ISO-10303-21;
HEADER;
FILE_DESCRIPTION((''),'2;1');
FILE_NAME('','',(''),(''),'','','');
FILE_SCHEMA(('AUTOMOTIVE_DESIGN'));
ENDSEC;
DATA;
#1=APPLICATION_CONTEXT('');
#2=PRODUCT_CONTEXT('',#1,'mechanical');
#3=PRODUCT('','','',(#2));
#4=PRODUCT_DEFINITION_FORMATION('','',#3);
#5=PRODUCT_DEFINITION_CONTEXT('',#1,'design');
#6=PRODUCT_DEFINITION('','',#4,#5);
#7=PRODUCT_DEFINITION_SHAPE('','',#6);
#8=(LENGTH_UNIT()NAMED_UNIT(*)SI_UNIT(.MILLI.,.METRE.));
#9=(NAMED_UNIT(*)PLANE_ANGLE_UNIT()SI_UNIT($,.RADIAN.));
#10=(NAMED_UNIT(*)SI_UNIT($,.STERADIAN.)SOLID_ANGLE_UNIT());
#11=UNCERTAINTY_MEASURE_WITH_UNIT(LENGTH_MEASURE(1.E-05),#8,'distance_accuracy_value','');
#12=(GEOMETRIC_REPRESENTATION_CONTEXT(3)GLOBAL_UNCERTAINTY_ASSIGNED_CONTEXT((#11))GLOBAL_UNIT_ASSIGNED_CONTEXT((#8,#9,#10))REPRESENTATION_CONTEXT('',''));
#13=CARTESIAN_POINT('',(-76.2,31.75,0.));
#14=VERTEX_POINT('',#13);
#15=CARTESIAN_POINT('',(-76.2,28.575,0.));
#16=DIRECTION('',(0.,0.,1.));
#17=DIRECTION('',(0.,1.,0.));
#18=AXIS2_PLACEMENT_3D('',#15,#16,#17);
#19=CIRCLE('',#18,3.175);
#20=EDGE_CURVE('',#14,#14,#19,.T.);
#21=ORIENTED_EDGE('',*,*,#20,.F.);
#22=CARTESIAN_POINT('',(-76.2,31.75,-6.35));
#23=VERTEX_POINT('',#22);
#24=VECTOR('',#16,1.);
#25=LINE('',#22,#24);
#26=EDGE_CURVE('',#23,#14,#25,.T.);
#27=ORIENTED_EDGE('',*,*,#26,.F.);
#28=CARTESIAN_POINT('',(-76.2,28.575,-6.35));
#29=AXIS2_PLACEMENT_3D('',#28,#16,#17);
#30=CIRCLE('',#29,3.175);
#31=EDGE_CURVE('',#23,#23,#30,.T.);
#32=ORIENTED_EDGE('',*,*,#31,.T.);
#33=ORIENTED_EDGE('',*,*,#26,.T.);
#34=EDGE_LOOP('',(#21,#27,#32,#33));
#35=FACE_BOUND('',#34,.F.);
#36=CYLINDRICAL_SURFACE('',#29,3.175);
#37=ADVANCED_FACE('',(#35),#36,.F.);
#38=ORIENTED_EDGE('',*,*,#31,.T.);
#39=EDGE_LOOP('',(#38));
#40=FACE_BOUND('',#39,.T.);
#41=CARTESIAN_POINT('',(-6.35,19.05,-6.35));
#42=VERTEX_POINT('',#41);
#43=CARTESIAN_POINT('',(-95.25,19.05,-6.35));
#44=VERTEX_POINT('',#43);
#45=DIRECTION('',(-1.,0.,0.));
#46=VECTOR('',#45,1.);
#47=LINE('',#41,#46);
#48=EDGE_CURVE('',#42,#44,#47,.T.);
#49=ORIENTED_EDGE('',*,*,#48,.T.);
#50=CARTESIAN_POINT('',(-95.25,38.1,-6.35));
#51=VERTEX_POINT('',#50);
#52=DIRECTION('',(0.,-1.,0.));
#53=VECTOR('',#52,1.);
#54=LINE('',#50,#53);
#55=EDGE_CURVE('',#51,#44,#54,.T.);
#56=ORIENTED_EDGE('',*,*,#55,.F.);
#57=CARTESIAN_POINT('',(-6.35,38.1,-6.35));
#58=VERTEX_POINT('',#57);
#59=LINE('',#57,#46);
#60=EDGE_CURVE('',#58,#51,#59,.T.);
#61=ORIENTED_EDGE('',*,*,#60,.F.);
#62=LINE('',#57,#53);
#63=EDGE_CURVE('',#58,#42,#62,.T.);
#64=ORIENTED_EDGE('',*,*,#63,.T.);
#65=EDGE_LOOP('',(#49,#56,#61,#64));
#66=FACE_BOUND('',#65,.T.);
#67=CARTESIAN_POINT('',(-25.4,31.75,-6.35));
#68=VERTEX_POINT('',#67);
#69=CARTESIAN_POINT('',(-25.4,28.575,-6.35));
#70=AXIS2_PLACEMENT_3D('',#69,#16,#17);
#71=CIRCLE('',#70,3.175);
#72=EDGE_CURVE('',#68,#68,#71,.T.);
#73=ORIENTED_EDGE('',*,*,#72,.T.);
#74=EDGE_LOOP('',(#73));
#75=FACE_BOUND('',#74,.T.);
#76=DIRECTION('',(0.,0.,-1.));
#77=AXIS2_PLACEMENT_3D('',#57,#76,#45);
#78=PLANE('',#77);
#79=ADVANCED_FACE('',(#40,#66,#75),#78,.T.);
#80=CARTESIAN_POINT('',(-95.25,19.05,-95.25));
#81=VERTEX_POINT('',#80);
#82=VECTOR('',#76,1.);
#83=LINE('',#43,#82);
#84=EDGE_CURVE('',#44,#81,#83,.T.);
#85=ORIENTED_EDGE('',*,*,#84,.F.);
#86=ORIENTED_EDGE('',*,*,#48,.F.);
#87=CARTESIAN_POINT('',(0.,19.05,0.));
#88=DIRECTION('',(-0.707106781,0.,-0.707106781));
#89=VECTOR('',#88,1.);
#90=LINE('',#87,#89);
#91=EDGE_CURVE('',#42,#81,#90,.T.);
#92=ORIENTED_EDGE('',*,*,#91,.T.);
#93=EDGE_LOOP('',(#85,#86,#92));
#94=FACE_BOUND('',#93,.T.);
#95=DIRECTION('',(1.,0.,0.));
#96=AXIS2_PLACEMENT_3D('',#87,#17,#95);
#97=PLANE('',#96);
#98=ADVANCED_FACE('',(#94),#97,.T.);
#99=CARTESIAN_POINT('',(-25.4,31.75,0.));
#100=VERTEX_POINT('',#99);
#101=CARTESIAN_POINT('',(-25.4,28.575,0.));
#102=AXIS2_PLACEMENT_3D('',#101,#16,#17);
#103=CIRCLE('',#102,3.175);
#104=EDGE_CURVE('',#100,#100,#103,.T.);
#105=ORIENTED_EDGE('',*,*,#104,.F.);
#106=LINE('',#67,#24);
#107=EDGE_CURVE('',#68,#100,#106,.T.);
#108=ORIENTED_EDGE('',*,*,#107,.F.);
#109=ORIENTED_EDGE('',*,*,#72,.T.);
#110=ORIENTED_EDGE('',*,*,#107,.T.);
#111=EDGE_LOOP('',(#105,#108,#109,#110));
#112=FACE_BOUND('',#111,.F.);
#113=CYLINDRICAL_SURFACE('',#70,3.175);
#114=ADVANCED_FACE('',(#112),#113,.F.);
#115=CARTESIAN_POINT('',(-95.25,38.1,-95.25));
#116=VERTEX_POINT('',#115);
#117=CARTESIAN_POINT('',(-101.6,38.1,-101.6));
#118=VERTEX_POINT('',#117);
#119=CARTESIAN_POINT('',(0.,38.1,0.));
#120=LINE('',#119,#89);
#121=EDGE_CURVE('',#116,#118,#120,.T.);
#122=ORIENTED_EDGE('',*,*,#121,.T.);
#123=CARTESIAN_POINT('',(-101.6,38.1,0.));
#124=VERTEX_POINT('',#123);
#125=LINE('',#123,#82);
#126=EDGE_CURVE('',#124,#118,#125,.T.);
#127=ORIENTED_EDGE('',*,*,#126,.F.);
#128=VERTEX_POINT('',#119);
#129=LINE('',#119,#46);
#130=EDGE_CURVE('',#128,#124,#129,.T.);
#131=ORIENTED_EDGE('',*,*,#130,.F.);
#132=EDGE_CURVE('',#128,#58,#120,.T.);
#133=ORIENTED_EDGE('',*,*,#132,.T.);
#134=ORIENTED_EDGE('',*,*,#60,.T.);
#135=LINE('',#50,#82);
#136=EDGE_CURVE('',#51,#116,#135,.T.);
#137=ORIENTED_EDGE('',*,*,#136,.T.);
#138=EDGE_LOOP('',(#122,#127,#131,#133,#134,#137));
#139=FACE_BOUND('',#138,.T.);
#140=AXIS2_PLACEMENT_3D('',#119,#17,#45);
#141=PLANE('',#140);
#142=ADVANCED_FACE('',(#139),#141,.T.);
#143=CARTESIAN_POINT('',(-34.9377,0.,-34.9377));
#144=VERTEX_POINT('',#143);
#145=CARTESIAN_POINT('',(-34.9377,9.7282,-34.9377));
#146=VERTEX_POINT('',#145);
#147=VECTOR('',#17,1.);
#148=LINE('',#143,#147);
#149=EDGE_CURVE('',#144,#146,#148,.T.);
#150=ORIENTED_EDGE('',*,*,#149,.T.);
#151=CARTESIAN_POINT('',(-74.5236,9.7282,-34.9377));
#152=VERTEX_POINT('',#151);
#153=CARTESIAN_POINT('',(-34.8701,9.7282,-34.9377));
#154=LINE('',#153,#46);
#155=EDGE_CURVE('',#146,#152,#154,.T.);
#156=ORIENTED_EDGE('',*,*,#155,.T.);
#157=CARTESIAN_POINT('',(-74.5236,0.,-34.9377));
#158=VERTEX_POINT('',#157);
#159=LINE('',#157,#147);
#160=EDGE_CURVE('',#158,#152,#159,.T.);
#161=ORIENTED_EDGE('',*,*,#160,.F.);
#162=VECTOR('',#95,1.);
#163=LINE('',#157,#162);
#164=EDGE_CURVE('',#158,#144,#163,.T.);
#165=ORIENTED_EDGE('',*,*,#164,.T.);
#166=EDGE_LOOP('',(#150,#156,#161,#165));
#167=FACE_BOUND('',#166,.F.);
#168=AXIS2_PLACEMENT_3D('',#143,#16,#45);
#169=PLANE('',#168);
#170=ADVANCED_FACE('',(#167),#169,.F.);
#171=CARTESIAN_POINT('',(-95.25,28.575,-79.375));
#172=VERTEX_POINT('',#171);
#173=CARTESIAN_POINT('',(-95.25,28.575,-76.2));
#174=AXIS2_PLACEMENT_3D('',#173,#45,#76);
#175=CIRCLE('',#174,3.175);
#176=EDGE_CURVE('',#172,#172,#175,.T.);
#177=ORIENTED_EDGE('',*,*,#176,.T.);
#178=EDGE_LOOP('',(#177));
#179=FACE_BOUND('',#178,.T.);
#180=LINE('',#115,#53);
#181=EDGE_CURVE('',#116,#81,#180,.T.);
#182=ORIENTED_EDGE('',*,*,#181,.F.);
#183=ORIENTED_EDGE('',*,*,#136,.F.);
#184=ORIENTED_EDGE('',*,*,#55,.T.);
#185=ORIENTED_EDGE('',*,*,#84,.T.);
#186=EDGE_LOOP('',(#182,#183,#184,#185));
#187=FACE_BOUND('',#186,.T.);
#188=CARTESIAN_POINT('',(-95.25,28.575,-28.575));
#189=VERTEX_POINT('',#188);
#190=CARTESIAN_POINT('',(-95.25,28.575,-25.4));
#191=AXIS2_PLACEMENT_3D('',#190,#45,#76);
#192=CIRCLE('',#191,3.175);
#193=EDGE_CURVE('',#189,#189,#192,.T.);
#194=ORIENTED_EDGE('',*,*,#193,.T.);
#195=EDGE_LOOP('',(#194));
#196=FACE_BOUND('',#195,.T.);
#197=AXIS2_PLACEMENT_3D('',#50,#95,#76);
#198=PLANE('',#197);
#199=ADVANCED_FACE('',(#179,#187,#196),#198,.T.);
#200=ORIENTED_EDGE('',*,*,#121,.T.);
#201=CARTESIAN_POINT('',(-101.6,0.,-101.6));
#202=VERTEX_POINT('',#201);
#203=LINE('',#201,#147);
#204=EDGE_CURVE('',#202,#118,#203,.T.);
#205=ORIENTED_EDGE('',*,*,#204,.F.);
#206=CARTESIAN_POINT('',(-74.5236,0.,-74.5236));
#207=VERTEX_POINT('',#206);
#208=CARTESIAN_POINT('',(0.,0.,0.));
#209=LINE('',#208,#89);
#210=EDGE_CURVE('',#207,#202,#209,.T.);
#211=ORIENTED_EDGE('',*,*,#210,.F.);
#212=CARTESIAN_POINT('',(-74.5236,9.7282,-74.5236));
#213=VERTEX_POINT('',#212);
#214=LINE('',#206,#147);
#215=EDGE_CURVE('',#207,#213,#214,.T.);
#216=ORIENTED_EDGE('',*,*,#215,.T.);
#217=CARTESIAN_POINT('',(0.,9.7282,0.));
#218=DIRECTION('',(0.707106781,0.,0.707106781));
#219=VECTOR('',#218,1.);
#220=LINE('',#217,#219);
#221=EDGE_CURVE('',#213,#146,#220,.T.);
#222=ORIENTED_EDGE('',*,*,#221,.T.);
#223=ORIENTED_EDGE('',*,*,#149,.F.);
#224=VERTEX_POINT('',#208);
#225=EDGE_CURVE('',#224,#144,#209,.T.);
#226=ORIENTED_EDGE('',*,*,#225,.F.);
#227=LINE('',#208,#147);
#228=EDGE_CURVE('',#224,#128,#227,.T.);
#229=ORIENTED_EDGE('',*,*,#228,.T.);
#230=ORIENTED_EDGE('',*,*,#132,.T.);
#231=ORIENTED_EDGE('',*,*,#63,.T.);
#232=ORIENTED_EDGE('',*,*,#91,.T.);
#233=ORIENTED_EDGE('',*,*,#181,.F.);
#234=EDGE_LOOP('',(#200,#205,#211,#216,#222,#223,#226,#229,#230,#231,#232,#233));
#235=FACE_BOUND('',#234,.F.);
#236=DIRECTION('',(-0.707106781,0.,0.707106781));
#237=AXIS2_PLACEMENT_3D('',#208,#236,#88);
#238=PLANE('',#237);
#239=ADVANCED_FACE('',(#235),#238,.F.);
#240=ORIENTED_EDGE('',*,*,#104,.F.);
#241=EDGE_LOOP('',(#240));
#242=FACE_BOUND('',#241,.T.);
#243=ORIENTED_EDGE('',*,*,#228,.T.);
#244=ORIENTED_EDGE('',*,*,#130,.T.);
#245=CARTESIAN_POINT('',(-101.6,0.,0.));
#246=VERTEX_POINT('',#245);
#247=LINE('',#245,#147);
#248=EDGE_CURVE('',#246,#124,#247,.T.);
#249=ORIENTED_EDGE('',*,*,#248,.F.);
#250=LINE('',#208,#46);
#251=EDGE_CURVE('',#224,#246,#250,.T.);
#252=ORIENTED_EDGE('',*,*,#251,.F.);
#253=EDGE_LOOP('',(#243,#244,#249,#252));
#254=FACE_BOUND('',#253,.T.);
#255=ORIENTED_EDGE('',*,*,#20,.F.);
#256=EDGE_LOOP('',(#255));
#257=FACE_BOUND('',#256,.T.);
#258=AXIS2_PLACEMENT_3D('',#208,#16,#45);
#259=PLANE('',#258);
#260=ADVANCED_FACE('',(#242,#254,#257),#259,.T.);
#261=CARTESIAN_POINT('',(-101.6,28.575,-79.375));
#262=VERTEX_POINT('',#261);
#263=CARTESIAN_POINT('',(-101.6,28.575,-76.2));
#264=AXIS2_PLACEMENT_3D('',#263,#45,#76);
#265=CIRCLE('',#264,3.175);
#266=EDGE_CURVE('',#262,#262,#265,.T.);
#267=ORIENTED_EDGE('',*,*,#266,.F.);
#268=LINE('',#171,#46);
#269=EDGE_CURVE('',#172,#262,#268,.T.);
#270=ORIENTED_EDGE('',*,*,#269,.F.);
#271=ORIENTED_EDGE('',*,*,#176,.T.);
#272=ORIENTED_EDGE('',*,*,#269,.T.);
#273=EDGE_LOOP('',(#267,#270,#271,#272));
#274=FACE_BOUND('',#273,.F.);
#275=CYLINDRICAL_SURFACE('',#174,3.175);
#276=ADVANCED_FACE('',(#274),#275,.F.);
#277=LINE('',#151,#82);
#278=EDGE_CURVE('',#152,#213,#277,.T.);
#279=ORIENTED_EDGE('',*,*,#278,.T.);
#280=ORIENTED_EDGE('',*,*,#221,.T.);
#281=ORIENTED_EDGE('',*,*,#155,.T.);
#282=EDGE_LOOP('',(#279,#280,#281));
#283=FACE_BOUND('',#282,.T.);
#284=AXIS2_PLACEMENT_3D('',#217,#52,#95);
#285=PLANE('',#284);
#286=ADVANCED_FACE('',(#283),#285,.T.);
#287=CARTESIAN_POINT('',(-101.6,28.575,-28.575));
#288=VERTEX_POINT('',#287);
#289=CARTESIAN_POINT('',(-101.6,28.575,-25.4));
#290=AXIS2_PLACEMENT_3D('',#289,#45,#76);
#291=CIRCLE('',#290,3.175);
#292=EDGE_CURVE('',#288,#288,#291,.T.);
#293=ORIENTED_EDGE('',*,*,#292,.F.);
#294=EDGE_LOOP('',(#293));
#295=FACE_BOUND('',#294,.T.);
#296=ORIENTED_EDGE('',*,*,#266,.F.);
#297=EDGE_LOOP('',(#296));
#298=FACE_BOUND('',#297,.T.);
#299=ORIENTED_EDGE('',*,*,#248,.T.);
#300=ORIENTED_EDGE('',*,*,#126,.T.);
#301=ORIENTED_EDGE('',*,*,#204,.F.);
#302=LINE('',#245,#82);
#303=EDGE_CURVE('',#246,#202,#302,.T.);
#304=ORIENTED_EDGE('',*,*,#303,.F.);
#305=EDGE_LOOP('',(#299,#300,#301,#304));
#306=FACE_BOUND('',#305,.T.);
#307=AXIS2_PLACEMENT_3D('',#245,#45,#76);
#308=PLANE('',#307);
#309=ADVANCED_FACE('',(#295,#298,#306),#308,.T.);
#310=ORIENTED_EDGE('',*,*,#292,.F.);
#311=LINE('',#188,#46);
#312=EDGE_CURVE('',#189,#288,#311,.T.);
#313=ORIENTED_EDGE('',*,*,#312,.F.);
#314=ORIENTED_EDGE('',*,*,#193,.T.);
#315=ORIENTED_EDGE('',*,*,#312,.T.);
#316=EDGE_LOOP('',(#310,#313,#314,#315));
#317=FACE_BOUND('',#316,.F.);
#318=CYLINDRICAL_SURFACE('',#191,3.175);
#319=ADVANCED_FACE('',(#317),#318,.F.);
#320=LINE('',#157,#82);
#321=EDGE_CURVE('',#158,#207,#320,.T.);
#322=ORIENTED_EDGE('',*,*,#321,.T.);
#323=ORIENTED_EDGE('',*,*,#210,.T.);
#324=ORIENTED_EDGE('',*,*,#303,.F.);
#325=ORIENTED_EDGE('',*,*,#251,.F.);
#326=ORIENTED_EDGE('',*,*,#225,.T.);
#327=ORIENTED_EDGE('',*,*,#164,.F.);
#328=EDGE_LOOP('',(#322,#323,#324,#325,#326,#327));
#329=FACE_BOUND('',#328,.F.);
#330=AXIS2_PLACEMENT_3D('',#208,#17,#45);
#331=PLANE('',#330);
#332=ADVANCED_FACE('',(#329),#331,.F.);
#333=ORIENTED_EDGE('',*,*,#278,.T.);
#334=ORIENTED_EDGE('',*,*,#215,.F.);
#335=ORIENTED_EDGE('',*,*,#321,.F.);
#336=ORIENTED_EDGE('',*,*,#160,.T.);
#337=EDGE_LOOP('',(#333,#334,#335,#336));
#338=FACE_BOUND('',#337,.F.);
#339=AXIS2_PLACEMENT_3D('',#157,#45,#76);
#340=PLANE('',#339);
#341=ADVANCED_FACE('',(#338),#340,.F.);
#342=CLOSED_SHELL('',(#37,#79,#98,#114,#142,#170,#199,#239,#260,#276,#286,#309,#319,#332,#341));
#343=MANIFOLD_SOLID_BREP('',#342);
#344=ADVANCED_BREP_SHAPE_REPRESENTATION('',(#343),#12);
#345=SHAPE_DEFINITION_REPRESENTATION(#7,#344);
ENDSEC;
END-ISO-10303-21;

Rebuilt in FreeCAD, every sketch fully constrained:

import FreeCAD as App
import Part
import Sketcher
Q = App.Units.Quantity


def add_polygon(sketch, points):
    """Adds a closed chain of lines whose ends are joined by coincident constraints."""
    first, n = sketch.GeometryCount, len(points)
    for a, b in zip(points, points[1:] + points[:1]):
        sketch.addGeometry(Part.LineSegment(App.Vector(*a, 0), App.Vector(*b, 0)), False)
    for i in range(n):
        sketch.addConstraint(Sketcher.Constraint("Coincident", first + i, 2, first + (i + 1) % n, 1))

doc = App.newDocument("Part")
body = doc.addObject("PartDesign::Body", "Body")

# Sketch on XZ plane
sketch1 = body.newObject("Sketcher::SketchObject", "Sketch")
sketch1.AttachmentSupport = (doc.getObject("XZ_Plane"), [""])
sketch1.MapMode = "FlatFace"
add_polygon(sketch1, [(-102, 0), (0, 0), (-102, -102)])  # lines 0-2
sketch1.addConstraint(Sketcher.Constraint("Horizontal", 0))
sketch1.addConstraint(Sketcher.Constraint("Vertical", 2))
sketch1.addConstraint(Sketcher.Constraint("Coincident", 0, 2, -1, 1))
sketch1.addConstraint(Sketcher.Constraint("Equal", 0, 2))
sketch1.addConstraint(Sketcher.Constraint("DistanceX", 0, 1, 0, 2, Q("4 in")))
pad1 = body.newObject("PartDesign::Pad", "Pad")
pad1.Profile = sketch1
pad1.Length = Q("1.5 in")
pad1.Reversed = True

# Sketch on XZ plane
sketch2 = body.newObject("Sketcher::SketchObject", "Sketch001")
sketch2.AttachmentSupport = (doc.getObject("XZ_Plane"), [""])
sketch2.MapMode = "FlatFace"
sketch2.AttachmentOffset = App.Placement(App.Vector(0, 0, -1.5 * 25.4), App.Rotation())
add_polygon(sketch2, [(-95, -6), (-6, -6), (-95, -95)])  # lines 0-2
sketch2.addConstraint(Sketcher.Constraint("Horizontal", 0))
sketch2.addConstraint(Sketcher.Constraint("Vertical", 2))
sketch2.addConstraint(Sketcher.Constraint("Equal", 0, 2))
sketch2.addConstraint(Sketcher.Constraint("DistanceX", 0, 2, -1, 1, Q("0.25 in")))
sketch2.addConstraint(Sketcher.Constraint("DistanceY", 0, 2, -1, 1, Q("0.25 in")))
sketch2.addConstraint(Sketcher.Constraint("DistanceX", 0, 1, 0, 2, Q("3.5 in")))
pocket1 = body.newObject("PartDesign::Pocket", "Pocket")
pocket1.Profile = sketch2
pocket1.Length = Q("0.75 in")
pocket1.Reversed = True

# Sketch on YZ plane
sketch3 = body.newObject("Sketcher::SketchObject", "Sketch002")
sketch3.AttachmentSupport = (doc.getObject("YZ_Plane"), [""])
sketch3.MapMode = "FlatFace"
sketch3.AttachmentOffset = App.Placement(App.Vector(0, 0, -3.75 * 25.4), App.Rotation())
sketch3.addGeometry(Part.Circle(App.Vector(28.6, -76.2, 0), App.Vector(0, 0, 1), 3.2), False)
sketch3.addConstraint(Sketcher.Constraint("Diameter", 0, Q("0.25 in")))
sketch3.addConstraint(Sketcher.Constraint("DistanceY", 0, 3, -1, 1, Q("3 in")))
sketch3.addConstraint(Sketcher.Constraint("DistanceX", -1, 1, 0, 3, Q("1.125 in")))
doc.recompute()
hole = body.newObject("PartDesign::Hole", "Hole")
hole.Profile = sketch3
hole.ThreadType = "None"
hole.Diameter = Q("0.25 in")
hole.DepthType = "ThroughAll"

# Sketch on YZ plane
sketch4 = body.newObject("Sketcher::SketchObject", "Sketch003")
sketch4.AttachmentSupport = (doc.getObject("YZ_Plane"), [""])
sketch4.MapMode = "FlatFace"
sketch4.AttachmentOffset = App.Placement(App.Vector(0, 0, -3.75 * 25.4), App.Rotation())
sketch4.addGeometry(Part.Circle(App.Vector(28.6, -25.4, 0), App.Vector(0, 0, 1), 3.2), False)
sketch4.addConstraint(Sketcher.Constraint("Diameter", 0, Q("0.25 in")))
sketch4.addConstraint(Sketcher.Constraint("DistanceY", 0, 3, -1, 1, Q("1 in")))
sketch4.addConstraint(Sketcher.Constraint("DistanceX", -1, 1, 0, 3, Q("1.125 in")))
doc.recompute()
hole2 = body.newObject("PartDesign::Hole", "Hole001")
hole2.Profile = sketch4
hole2.ThreadType = "None"
hole2.Diameter = Q("0.25 in")
hole2.DepthType = "ThroughAll"

# Sketch on XY plane
sketch5 = body.newObject("Sketcher::SketchObject", "Sketch004")
sketch5.AttachmentSupport = (doc.getObject("XY_Plane"), [""])
sketch5.MapMode = "FlatFace"
sketch5.AttachmentOffset = App.Placement(App.Vector(0, 0, -0.25 * 25.4), App.Rotation())
sketch5.addGeometry(Part.Circle(App.Vector(-25.4, 28.6, 0), App.Vector(0, 0, 1), 3.2), False)
sketch5.addConstraint(Sketcher.Constraint("Diameter", 0, Q("0.25 in")))
sketch5.addConstraint(Sketcher.Constraint("DistanceX", 0, 3, -1, 1, Q("1 in")))
sketch5.addConstraint(Sketcher.Constraint("DistanceY", -1, 1, 0, 3, Q("1.125 in")))
doc.recompute()
hole3 = body.newObject("PartDesign::Hole", "Hole002")
hole3.Profile = sketch5
hole3.ThreadType = "None"
hole3.Diameter = Q("0.25 in")
hole3.DepthType = "ThroughAll"
hole3.Reversed = True

# Sketch on XY plane
sketch6 = body.newObject("Sketcher::SketchObject", "Sketch005")
sketch6.AttachmentSupport = (doc.getObject("XY_Plane"), [""])
sketch6.MapMode = "FlatFace"
sketch6.AttachmentOffset = App.Placement(App.Vector(0, 0, -0.25 * 25.4), App.Rotation())
sketch6.addGeometry(Part.Circle(App.Vector(-76.2, 28.6, 0), App.Vector(0, 0, 1), 3.2), False)
sketch6.addConstraint(Sketcher.Constraint("Diameter", 0, Q("0.25 in")))
sketch6.addConstraint(Sketcher.Constraint("DistanceX", 0, 3, -1, 1, Q("3 in")))
sketch6.addConstraint(Sketcher.Constraint("DistanceY", -1, 1, 0, 3, Q("1.125 in")))
doc.recompute()
hole4 = body.newObject("PartDesign::Hole", "Hole003")
hole4.Profile = sketch6
hole4.ThreadType = "None"
hole4.Diameter = Q("0.25 in")
hole4.DepthType = "ThroughAll"
hole4.Reversed = True

# Sketch on XZ plane
sketch7 = body.newObject("Sketcher::SketchObject", "Sketch006")
sketch7.AttachmentSupport = (doc.getObject("XZ_Plane"), [""])
sketch7.MapMode = "FlatFace"
add_polygon(sketch7, [(-75, -35), (-75, -75), (-35, -35)])  # lines 0-2
sketch7.addConstraint(Sketcher.Constraint("Vertical", 0))
sketch7.addConstraint(Sketcher.Constraint("Horizontal", 2))
sketch7.addConstraint(Sketcher.Constraint("Angle", 1, Q("44.9511 deg")))
sketch7.addConstraint(Sketcher.Constraint("DistanceY", 0, 2, 0, 1, Q("1.5585 in")))
sketch7.addConstraint(Sketcher.Constraint("DistanceX", 0, 2, -1, 1, Q("2.934 in")))
sketch7.addConstraint(Sketcher.Constraint("DistanceY", 0, 2, -1, 1, Q("2.934 in")))
pocket2 = body.newObject("PartDesign::Pocket", "Pocket001")
pocket2.Profile = sketch7
pocket2.Length = Q("0.383 in")

doc.recompute()
